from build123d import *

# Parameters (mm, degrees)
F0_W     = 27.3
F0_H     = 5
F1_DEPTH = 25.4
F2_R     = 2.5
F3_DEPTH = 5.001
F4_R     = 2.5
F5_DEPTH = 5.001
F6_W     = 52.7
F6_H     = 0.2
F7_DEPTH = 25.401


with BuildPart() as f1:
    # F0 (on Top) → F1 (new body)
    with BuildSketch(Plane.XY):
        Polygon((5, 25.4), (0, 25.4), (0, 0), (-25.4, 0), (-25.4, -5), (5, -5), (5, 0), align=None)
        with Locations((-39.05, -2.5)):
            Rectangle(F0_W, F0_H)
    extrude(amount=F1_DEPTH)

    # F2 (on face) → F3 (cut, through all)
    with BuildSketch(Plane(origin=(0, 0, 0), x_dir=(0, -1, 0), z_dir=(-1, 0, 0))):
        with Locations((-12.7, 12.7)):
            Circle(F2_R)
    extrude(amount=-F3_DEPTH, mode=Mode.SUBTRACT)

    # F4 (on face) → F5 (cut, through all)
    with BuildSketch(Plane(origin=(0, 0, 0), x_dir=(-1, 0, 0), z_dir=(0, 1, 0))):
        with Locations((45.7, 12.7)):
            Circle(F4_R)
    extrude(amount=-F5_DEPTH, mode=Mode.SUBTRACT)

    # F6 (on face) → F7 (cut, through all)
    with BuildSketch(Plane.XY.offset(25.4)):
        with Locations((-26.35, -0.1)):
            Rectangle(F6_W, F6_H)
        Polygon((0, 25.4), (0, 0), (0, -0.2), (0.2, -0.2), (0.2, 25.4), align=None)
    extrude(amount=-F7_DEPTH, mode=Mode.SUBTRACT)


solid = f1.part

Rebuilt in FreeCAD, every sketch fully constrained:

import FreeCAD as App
import Part
import Sketcher

V = App.Vector


def add_polygon(sketch, points):
    """Adds a closed chain of lines whose ends are joined by coincident constraints."""
    first, n = sketch.GeometryCount, len(points)
    for a, b in zip(points, points[1:] + points[:1]):
        sketch.addGeometry(Part.LineSegment(App.Vector(*a, 0), App.Vector(*b, 0)), False)
    for i in range(n):
        sketch.addConstraint(Sketcher.Constraint("Coincident", first + i, 2, first + (i + 1) % n, 1))

doc = App.newDocument("Part")
body = doc.addObject("PartDesign::Body", "Body")

# Sketch on XY plane
sketch1 = doc.addObject("Sketcher::SketchObject", "Sketch")
body.addObject(sketch1)
sketch1.AttachmentSupport = (doc.XY_Plane, [""])
sketch1.MapMode = "FlatFace"
add_polygon(sketch1, [(5, 25), (0, 25), (0, 0), (-53, 0), (-53, -5), (5, -5)])  # lines 0-5
sketch1.addConstraint([
    Sketcher.Constraint("Horizontal", 0),
    Sketcher.Constraint("Vertical", 1),
    Sketcher.Constraint("Horizontal", 2),
    Sketcher.Constraint("Vertical", 3),
    Sketcher.Constraint("Horizontal", 4),
    Sketcher.Constraint("Vertical", 5),
    Sketcher.Constraint("Coincident", 1, 2, -1, 1),
    Sketcher.Constraint("Equal", 0, 3),
    Sketcher.Constraint("DistanceX", 0, 2, 0, 1, 5.0),
    Sketcher.Constraint("DistanceX", 2, 2, 2, 1, 52.7),
    Sketcher.Constraint("DistanceY", 1, 2, 1, 1, 25.4),
])
pad1 = doc.addObject("PartDesign::Pad", "Pad")
body.addObject(pad1)
pad1.Profile = sketch1
pad1.Length = 25.4

# Sketch on YZ plane
sketch2 = doc.addObject("Sketcher::SketchObject", "Sketch001")
body.addObject(sketch2)
sketch2.AttachmentSupport = (doc.YZ_Plane, [""])
sketch2.MapMode = "FlatFace"
sketch2.addGeometry(Part.Circle(V(12.7, 12.7, 0), V(0, 0, 1), 2.5), False)
sketch2.addConstraint([
    Sketcher.Constraint("Diameter", 0, 5.0),
    Sketcher.Constraint("DistanceX", -1, 1, 0, 3, 12.7),
    Sketcher.Constraint("DistanceY", -1, 1, 0, 3, 12.7),
])
pocket1 = doc.addObject("PartDesign::Pocket", "Pocket")
body.addObject(pocket1)
pocket1.Profile = sketch2
pocket1.Type = "ThroughAll"
pocket1.Reversed = True

# Sketch on XZ plane
sketch3 = doc.addObject("Sketcher::SketchObject", "Sketch002")
body.addObject(sketch3)
sketch3.AttachmentSupport = (doc.XZ_Plane, [""])
sketch3.MapMode = "FlatFace"
sketch3.addGeometry(Part.Circle(V(-45.7, 12.7, 0), V(0, 0, 1), 2.5), False)
sketch3.addConstraint([
    Sketcher.Constraint("Diameter", 0, 5.0),
    Sketcher.Constraint("DistanceX", 0, 3, -1, 1, 45.7),
    Sketcher.Constraint("DistanceY", -1, 1, 0, 3, 12.7),
])
pocket2 = doc.addObject("PartDesign::Pocket", "Pocket001")
body.addObject(pocket2)
pocket2.Profile = sketch3
pocket2.Type = "ThroughAll"
pocket2.Reversed = True

# Sketch on XY plane
sketch4 = doc.addObject("Sketcher::SketchObject", "Sketch003")
body.addObject(sketch4)
sketch4.AttachmentSupport = (doc.XY_Plane, [""])
sketch4.MapMode = "FlatFace"
sketch4.AttachmentOffset = App.Placement(V(0, 0, 25.4), App.Rotation())
add_polygon(sketch4, [(-52.7, 0), (-52.7, -0.2), (0.2, -0.2), (0.2, 25.4), (0, 25.4), (0, 0)])  # lines 0-5
sketch4.addConstraint([
    Sketcher.Constraint("Vertical", 0),
    Sketcher.Constraint("Horizontal", 1),
    Sketcher.Constraint("Vertical", 2),
    Sketcher.Constraint("Horizontal", 3),
    Sketcher.Constraint("Vertical", 4),
    Sketcher.Constraint("Horizontal", 5),
    Sketcher.Constraint("Coincident", 4, 2, -1, 1),
    Sketcher.Constraint("Equal", 3, 0),
    Sketcher.Constraint("DistanceX", 1, 1, 1, 2, 52.9),
    Sketcher.Constraint("DistanceX", 3, 2, 3, 1, 0.2),
    Sketcher.Constraint("DistanceY", 2, 1, 2, 2, 25.6),
])
pocket3 = doc.addObject("PartDesign::Pocket", "Pocket002")
body.addObject(pocket3)
pocket3.Profile = sketch4
pocket3.Type = "ThroughAll"

doc.recompute()
